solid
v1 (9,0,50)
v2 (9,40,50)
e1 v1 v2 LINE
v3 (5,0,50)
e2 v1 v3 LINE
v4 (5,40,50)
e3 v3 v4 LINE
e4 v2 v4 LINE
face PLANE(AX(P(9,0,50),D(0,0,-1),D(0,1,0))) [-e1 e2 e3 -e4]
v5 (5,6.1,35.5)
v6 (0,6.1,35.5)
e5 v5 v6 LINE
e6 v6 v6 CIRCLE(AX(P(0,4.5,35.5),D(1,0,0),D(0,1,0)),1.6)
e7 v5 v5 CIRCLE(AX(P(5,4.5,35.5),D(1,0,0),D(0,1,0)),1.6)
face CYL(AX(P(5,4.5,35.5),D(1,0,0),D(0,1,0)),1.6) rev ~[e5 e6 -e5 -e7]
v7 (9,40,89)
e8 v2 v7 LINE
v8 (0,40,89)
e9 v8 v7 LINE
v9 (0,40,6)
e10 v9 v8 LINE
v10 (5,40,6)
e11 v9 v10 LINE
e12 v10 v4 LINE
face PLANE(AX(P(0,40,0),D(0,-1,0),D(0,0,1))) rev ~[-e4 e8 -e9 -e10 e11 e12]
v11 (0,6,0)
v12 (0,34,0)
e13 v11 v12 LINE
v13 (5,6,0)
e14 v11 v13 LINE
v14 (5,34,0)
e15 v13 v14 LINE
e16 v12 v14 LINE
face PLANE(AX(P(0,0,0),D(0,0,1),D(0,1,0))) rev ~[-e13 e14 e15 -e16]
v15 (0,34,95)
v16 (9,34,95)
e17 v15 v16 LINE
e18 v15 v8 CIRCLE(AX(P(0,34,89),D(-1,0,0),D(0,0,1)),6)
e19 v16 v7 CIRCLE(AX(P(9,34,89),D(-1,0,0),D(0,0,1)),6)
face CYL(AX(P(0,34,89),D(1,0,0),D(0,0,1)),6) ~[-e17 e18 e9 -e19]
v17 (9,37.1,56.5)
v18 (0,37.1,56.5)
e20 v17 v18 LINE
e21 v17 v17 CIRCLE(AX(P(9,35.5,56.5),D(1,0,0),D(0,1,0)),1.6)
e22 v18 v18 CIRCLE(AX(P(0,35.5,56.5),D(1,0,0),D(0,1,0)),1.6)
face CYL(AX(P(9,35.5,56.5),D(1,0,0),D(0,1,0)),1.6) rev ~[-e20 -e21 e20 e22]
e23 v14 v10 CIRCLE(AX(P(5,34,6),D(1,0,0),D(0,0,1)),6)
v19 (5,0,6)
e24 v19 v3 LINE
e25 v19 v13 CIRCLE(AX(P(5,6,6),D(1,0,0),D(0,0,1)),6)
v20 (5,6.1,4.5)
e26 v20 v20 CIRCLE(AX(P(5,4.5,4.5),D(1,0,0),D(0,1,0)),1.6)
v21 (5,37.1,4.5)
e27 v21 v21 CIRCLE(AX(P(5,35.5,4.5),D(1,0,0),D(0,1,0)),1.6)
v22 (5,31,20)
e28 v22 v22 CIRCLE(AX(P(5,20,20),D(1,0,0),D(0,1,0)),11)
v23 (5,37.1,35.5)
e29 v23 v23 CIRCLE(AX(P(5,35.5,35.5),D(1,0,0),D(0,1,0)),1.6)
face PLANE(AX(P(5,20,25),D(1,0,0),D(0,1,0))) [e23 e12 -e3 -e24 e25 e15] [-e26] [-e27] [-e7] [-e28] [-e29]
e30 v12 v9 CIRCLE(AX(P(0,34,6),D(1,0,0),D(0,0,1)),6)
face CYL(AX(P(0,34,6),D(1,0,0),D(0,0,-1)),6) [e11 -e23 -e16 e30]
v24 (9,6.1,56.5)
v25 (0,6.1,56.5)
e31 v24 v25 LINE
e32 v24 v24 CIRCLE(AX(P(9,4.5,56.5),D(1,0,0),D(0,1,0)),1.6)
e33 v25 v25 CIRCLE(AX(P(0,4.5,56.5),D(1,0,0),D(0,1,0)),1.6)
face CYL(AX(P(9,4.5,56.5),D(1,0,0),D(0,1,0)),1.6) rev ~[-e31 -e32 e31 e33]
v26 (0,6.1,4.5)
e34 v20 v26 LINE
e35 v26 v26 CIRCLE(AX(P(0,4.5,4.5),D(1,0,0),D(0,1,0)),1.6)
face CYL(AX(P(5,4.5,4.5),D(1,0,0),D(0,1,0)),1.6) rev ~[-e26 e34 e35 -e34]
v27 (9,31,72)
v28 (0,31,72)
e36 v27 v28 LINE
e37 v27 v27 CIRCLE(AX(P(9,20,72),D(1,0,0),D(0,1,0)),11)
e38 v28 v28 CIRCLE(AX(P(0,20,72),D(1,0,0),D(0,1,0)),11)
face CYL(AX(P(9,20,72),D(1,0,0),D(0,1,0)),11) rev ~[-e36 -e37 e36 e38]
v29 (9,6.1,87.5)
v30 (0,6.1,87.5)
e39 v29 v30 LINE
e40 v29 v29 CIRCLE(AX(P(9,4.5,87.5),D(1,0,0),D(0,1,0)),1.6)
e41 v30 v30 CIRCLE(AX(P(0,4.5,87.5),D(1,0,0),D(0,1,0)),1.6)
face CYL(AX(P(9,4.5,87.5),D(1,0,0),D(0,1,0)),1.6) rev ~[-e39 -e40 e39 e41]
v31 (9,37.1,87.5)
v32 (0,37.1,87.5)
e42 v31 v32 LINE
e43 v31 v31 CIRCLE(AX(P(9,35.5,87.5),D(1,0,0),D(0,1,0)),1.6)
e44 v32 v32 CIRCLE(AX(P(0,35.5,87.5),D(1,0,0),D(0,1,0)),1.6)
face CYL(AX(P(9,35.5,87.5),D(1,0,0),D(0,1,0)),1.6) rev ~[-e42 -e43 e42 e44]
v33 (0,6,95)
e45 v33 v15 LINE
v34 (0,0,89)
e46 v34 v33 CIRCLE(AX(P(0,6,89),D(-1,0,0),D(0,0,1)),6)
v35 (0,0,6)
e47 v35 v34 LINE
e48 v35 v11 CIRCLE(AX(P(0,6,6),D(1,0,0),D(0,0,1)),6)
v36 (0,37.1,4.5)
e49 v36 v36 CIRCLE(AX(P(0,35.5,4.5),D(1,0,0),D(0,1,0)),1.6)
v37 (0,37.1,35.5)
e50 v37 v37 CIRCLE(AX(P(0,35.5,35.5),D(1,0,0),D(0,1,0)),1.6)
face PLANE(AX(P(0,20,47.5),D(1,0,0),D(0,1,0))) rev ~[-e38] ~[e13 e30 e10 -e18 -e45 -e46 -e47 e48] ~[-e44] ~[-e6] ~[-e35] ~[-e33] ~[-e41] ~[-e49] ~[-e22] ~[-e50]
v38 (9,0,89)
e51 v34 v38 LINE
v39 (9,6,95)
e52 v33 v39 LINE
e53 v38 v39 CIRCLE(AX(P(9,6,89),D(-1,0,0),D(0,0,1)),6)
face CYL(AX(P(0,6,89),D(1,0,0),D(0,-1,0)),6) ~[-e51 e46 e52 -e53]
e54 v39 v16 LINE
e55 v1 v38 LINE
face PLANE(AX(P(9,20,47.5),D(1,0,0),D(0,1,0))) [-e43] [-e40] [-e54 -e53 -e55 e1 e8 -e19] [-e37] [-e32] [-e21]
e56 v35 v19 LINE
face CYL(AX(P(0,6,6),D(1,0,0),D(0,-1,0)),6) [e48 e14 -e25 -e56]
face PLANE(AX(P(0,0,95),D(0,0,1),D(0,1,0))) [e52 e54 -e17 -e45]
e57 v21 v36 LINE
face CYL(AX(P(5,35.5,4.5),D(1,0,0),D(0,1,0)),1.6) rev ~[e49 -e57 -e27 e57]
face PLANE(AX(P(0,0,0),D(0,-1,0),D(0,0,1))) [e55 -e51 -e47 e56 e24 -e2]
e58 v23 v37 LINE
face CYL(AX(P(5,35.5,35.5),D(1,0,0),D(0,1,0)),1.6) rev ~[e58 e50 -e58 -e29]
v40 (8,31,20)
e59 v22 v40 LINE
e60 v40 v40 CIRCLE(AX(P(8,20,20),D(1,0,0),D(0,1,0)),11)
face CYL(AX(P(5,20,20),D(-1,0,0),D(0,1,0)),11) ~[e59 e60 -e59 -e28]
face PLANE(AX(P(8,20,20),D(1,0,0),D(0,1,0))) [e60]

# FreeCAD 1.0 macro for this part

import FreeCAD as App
import Part
import Sketcher


def edges_at(feature, points):
    """Names of the edges that pass closest to the given points."""
    edges = feature.Shape.Edges
    near = lambda p: min(range(len(edges)), key=lambda i: edges[i].distToShape(Part.Vertex(*p))[0])
    return sorted({f"Edge{near(p) + 1}" for p in points})


def add_polygon(sketch, points):
    """Adds a closed chain of lines whose ends are joined by coincident constraints."""
    first, n = sketch.GeometryCount, len(points)
    for a, b in zip(points, points[1:] + points[:1]):
        sketch.addGeometry(Part.LineSegment(App.Vector(*a, 0), App.Vector(*b, 0)), False)
    for i in range(n):
        sketch.addConstraint(Sketcher.Constraint("Coincident", first + i, 2, first + (i + 1) % n, 1))

doc = App.newDocument("Part")
body = doc.addObject("PartDesign::Body", "Body")

sketch1 = body.newObject("Sketcher::SketchObject", "Sketch")
sketch1.AttachmentSupport = (doc.getObject("YZ_Plane"), [""])
sketch1.MapMode = "FlatFace"
add_polygon(sketch1, [(0, 95), (0, 0), (40, 0), (40, 95)])
sketch1.addConstraint([
    Sketcher.Constraint("Vertical", 0),
    Sketcher.Constraint("Horizontal", 1),
    Sketcher.Constraint("Vertical", 2),
    Sketcher.Constraint("Horizontal", 3),
    Sketcher.Constraint("Coincident", 0, 2, -1, 1),
    Sketcher.Constraint("DistanceX", 1, 1, 1, 2, 40.0),
    Sketcher.Constraint("DistanceY", 0, 2, 0, 1, 95.0),
])
pad1 = body.newObject("PartDesign::Pad", "Pad")
pad1.Profile = sketch1
pad1.Length = 9

sketch2 = body.newObject("Sketcher::SketchObject", "Sketch001")
sketch2.AttachmentSupport = (doc.getObject("YZ_Plane"), [""])
sketch2.MapMode = "FlatFace"
sketch2.AttachmentOffset = App.Placement(App.Vector(0, 0, 9), App.Rotation())
add_polygon(sketch2, [(0, 50), (0, 0), (40, 0), (40, 50)])
sketch2.addConstraint([
    Sketcher.Constraint("Vertical", 0),
    Sketcher.Constraint("Horizontal", 1),
    Sketcher.Constraint("Vertical", 2),
    Sketcher.Constraint("Horizontal", 3),
    Sketcher.Constraint("Coincident", 0, 2, -1, 1),
    Sketcher.Constraint("DistanceX", 1, 1, 1, 2, 40.0),
    Sketcher.Constraint("DistanceY", 0, 2, 0, 1, 50.0),
])
pocket1 = body.newObject("PartDesign::Pocket", "Pocket")
pocket1.Profile = sketch2
pocket1.Length = 4

sketch3 = body.newObject("Sketcher::SketchObject", "Sketch002")
sketch3.AttachmentSupport = (doc.getObject("YZ_Plane"), [""])
sketch3.MapMode = "FlatFace"
sketch3.AttachmentOffset = App.Placement(App.Vector(0, 0, 5), App.Rotation())
sketch3.addGeometry(Part.Circle(App.Vector(20, 20, 0), App.Vector(0, 0, 1), 11), False)
sketch3.addConstraint([
    Sketcher.Constraint("Diameter", 0, 22.0),
    Sketcher.Constraint("DistanceX", -1, 1, 0, 3, 20.0),
    Sketcher.Constraint("DistanceY", -1, 1, 0, 3, 20.0),
])
pad2 = body.newObject("PartDesign::Pad", "Pad001")
pad2.Profile = sketch3
pad2.Length = 3

sketch4 = body.newObject("Sketcher::SketchObject", "Sketch003")
sketch4.AttachmentSupport = (doc.getObject("YZ_Plane"), [""])
sketch4.MapMode = "FlatFace"
sketch4.AttachmentOffset = App.Placement(App.Vector(0, 0, 5), App.Rotation())
sketch4.addGeometry([
    Part.Circle(App.Vector(4.5, 35.5, 0), App.Vector(0, 0, 1), 1.6),
    Part.Circle(App.Vector(35.5, 35.5, 0), App.Vector(0, 0, 1), 1.6),
    Part.Circle(App.Vector(35.5, 4.5, 0), App.Vector(0, 0, 1), 1.6),
    Part.Circle(App.Vector(4.5, 4.5, 0), App.Vector(0, 0, 1), 1.6),
], False)
sketch4.addConstraint([
    Sketcher.Constraint("Equal", 0, 1),
    Sketcher.Constraint("Equal", 1, 2),
    Sketcher.Constraint("Equal", 2, 3),
    Sketcher.Constraint("Horizontal", 0, 3, 1, 3),
    Sketcher.Constraint("Horizontal", 2, 3, 3, 3),
    Sketcher.Constraint("Vertical", 1, 3, 2, 3),
    Sketcher.Constraint("Vertical", 0, 3, 3, 3),
    Sketcher.Constraint("Diameter", 0, 3.2),
    Sketcher.Constraint("DistanceX", 0, 3, 1, 3, 31.0),
    Sketcher.Constraint("DistanceY", 2, 3, 1, 3, 31.0),
    Sketcher.Constraint("DistanceX", -1, 1, 0, 3, 4.5),
    Sketcher.Constraint("DistanceY", -1, 1, 0, 3, 35.5),
])
pocket2 = body.newObject("PartDesign::Pocket", "Pocket001")
pocket2.Profile = sketch4
pocket2.Length = 8

sketch5 = body.newObject("Sketcher::SketchObject", "Sketch004")
sketch5.AttachmentSupport = (doc.getObject("YZ_Plane"), [""])
sketch5.MapMode = "FlatFace"
sketch5.AttachmentOffset = App.Placement(App.Vector(0, 0, 9), App.Rotation())
sketch5.addGeometry([
    Part.Circle(App.Vector(20, 72, 0), App.Vector(0, 0, 1), 11),
    Part.Circle(App.Vector(4.5, 87.5, 0), App.Vector(0, 0, 1), 1.6),
    Part.Circle(App.Vector(35.5, 87.5, 0), App.Vector(0, 0, 1), 1.6),
    Part.Circle(App.Vector(35.5, 56.5, 0), App.Vector(0, 0, 1), 1.6),
    Part.Circle(App.Vector(4.5, 56.5, 0), App.Vector(0, 0, 1), 1.6),
], False)
sketch5.addConstraint([
    Sketcher.Constraint("Equal", 1, 2),
    Sketcher.Constraint("Equal", 2, 3),
    Sketcher.Constraint("Equal", 3, 4),
    Sketcher.Constraint("Horizontal", 1, 3, 2, 3),
    Sketcher.Constraint("Horizontal", 3, 3, 4, 3),
    Sketcher.Constraint("Vertical", 2, 3, 3, 3),
    Sketcher.Constraint("Vertical", 1, 3, 4, 3),
    Sketcher.Constraint("Diameter", 0, 22.0),
    Sketcher.Constraint("Diameter", 1, 3.2),
    Sketcher.Constraint("DistanceX", -1, 1, 0, 3, 20.0),
    Sketcher.Constraint("DistanceY", -1, 1, 0, 3, 72.0),
    Sketcher.Constraint("DistanceX", 1, 3, 2, 3, 31.0),
    Sketcher.Constraint("DistanceY", 3, 3, 2, 3, 31.0),
    Sketcher.Constraint("DistanceX", -1, 1, 1, 3, 4.5),
    Sketcher.Constraint("DistanceY", -1, 1, 1, 3, 87.5),
])
pocket3 = body.newObject("PartDesign::Pocket", "Pocket002")
pocket3.Profile = sketch5
pocket3.Length = 10
doc.recompute()

fillet = body.newObject("PartDesign::Fillet", "Fillet")
fillet.Base = (pocket3, edges_at(pocket3, [
    (4.5, 0, 95),
    (4.5, 40, 95),
    (2.5, 40, 0),
    (2.5, 0, 0),
]))
fillet.Radius = 6

doc.recompute()
